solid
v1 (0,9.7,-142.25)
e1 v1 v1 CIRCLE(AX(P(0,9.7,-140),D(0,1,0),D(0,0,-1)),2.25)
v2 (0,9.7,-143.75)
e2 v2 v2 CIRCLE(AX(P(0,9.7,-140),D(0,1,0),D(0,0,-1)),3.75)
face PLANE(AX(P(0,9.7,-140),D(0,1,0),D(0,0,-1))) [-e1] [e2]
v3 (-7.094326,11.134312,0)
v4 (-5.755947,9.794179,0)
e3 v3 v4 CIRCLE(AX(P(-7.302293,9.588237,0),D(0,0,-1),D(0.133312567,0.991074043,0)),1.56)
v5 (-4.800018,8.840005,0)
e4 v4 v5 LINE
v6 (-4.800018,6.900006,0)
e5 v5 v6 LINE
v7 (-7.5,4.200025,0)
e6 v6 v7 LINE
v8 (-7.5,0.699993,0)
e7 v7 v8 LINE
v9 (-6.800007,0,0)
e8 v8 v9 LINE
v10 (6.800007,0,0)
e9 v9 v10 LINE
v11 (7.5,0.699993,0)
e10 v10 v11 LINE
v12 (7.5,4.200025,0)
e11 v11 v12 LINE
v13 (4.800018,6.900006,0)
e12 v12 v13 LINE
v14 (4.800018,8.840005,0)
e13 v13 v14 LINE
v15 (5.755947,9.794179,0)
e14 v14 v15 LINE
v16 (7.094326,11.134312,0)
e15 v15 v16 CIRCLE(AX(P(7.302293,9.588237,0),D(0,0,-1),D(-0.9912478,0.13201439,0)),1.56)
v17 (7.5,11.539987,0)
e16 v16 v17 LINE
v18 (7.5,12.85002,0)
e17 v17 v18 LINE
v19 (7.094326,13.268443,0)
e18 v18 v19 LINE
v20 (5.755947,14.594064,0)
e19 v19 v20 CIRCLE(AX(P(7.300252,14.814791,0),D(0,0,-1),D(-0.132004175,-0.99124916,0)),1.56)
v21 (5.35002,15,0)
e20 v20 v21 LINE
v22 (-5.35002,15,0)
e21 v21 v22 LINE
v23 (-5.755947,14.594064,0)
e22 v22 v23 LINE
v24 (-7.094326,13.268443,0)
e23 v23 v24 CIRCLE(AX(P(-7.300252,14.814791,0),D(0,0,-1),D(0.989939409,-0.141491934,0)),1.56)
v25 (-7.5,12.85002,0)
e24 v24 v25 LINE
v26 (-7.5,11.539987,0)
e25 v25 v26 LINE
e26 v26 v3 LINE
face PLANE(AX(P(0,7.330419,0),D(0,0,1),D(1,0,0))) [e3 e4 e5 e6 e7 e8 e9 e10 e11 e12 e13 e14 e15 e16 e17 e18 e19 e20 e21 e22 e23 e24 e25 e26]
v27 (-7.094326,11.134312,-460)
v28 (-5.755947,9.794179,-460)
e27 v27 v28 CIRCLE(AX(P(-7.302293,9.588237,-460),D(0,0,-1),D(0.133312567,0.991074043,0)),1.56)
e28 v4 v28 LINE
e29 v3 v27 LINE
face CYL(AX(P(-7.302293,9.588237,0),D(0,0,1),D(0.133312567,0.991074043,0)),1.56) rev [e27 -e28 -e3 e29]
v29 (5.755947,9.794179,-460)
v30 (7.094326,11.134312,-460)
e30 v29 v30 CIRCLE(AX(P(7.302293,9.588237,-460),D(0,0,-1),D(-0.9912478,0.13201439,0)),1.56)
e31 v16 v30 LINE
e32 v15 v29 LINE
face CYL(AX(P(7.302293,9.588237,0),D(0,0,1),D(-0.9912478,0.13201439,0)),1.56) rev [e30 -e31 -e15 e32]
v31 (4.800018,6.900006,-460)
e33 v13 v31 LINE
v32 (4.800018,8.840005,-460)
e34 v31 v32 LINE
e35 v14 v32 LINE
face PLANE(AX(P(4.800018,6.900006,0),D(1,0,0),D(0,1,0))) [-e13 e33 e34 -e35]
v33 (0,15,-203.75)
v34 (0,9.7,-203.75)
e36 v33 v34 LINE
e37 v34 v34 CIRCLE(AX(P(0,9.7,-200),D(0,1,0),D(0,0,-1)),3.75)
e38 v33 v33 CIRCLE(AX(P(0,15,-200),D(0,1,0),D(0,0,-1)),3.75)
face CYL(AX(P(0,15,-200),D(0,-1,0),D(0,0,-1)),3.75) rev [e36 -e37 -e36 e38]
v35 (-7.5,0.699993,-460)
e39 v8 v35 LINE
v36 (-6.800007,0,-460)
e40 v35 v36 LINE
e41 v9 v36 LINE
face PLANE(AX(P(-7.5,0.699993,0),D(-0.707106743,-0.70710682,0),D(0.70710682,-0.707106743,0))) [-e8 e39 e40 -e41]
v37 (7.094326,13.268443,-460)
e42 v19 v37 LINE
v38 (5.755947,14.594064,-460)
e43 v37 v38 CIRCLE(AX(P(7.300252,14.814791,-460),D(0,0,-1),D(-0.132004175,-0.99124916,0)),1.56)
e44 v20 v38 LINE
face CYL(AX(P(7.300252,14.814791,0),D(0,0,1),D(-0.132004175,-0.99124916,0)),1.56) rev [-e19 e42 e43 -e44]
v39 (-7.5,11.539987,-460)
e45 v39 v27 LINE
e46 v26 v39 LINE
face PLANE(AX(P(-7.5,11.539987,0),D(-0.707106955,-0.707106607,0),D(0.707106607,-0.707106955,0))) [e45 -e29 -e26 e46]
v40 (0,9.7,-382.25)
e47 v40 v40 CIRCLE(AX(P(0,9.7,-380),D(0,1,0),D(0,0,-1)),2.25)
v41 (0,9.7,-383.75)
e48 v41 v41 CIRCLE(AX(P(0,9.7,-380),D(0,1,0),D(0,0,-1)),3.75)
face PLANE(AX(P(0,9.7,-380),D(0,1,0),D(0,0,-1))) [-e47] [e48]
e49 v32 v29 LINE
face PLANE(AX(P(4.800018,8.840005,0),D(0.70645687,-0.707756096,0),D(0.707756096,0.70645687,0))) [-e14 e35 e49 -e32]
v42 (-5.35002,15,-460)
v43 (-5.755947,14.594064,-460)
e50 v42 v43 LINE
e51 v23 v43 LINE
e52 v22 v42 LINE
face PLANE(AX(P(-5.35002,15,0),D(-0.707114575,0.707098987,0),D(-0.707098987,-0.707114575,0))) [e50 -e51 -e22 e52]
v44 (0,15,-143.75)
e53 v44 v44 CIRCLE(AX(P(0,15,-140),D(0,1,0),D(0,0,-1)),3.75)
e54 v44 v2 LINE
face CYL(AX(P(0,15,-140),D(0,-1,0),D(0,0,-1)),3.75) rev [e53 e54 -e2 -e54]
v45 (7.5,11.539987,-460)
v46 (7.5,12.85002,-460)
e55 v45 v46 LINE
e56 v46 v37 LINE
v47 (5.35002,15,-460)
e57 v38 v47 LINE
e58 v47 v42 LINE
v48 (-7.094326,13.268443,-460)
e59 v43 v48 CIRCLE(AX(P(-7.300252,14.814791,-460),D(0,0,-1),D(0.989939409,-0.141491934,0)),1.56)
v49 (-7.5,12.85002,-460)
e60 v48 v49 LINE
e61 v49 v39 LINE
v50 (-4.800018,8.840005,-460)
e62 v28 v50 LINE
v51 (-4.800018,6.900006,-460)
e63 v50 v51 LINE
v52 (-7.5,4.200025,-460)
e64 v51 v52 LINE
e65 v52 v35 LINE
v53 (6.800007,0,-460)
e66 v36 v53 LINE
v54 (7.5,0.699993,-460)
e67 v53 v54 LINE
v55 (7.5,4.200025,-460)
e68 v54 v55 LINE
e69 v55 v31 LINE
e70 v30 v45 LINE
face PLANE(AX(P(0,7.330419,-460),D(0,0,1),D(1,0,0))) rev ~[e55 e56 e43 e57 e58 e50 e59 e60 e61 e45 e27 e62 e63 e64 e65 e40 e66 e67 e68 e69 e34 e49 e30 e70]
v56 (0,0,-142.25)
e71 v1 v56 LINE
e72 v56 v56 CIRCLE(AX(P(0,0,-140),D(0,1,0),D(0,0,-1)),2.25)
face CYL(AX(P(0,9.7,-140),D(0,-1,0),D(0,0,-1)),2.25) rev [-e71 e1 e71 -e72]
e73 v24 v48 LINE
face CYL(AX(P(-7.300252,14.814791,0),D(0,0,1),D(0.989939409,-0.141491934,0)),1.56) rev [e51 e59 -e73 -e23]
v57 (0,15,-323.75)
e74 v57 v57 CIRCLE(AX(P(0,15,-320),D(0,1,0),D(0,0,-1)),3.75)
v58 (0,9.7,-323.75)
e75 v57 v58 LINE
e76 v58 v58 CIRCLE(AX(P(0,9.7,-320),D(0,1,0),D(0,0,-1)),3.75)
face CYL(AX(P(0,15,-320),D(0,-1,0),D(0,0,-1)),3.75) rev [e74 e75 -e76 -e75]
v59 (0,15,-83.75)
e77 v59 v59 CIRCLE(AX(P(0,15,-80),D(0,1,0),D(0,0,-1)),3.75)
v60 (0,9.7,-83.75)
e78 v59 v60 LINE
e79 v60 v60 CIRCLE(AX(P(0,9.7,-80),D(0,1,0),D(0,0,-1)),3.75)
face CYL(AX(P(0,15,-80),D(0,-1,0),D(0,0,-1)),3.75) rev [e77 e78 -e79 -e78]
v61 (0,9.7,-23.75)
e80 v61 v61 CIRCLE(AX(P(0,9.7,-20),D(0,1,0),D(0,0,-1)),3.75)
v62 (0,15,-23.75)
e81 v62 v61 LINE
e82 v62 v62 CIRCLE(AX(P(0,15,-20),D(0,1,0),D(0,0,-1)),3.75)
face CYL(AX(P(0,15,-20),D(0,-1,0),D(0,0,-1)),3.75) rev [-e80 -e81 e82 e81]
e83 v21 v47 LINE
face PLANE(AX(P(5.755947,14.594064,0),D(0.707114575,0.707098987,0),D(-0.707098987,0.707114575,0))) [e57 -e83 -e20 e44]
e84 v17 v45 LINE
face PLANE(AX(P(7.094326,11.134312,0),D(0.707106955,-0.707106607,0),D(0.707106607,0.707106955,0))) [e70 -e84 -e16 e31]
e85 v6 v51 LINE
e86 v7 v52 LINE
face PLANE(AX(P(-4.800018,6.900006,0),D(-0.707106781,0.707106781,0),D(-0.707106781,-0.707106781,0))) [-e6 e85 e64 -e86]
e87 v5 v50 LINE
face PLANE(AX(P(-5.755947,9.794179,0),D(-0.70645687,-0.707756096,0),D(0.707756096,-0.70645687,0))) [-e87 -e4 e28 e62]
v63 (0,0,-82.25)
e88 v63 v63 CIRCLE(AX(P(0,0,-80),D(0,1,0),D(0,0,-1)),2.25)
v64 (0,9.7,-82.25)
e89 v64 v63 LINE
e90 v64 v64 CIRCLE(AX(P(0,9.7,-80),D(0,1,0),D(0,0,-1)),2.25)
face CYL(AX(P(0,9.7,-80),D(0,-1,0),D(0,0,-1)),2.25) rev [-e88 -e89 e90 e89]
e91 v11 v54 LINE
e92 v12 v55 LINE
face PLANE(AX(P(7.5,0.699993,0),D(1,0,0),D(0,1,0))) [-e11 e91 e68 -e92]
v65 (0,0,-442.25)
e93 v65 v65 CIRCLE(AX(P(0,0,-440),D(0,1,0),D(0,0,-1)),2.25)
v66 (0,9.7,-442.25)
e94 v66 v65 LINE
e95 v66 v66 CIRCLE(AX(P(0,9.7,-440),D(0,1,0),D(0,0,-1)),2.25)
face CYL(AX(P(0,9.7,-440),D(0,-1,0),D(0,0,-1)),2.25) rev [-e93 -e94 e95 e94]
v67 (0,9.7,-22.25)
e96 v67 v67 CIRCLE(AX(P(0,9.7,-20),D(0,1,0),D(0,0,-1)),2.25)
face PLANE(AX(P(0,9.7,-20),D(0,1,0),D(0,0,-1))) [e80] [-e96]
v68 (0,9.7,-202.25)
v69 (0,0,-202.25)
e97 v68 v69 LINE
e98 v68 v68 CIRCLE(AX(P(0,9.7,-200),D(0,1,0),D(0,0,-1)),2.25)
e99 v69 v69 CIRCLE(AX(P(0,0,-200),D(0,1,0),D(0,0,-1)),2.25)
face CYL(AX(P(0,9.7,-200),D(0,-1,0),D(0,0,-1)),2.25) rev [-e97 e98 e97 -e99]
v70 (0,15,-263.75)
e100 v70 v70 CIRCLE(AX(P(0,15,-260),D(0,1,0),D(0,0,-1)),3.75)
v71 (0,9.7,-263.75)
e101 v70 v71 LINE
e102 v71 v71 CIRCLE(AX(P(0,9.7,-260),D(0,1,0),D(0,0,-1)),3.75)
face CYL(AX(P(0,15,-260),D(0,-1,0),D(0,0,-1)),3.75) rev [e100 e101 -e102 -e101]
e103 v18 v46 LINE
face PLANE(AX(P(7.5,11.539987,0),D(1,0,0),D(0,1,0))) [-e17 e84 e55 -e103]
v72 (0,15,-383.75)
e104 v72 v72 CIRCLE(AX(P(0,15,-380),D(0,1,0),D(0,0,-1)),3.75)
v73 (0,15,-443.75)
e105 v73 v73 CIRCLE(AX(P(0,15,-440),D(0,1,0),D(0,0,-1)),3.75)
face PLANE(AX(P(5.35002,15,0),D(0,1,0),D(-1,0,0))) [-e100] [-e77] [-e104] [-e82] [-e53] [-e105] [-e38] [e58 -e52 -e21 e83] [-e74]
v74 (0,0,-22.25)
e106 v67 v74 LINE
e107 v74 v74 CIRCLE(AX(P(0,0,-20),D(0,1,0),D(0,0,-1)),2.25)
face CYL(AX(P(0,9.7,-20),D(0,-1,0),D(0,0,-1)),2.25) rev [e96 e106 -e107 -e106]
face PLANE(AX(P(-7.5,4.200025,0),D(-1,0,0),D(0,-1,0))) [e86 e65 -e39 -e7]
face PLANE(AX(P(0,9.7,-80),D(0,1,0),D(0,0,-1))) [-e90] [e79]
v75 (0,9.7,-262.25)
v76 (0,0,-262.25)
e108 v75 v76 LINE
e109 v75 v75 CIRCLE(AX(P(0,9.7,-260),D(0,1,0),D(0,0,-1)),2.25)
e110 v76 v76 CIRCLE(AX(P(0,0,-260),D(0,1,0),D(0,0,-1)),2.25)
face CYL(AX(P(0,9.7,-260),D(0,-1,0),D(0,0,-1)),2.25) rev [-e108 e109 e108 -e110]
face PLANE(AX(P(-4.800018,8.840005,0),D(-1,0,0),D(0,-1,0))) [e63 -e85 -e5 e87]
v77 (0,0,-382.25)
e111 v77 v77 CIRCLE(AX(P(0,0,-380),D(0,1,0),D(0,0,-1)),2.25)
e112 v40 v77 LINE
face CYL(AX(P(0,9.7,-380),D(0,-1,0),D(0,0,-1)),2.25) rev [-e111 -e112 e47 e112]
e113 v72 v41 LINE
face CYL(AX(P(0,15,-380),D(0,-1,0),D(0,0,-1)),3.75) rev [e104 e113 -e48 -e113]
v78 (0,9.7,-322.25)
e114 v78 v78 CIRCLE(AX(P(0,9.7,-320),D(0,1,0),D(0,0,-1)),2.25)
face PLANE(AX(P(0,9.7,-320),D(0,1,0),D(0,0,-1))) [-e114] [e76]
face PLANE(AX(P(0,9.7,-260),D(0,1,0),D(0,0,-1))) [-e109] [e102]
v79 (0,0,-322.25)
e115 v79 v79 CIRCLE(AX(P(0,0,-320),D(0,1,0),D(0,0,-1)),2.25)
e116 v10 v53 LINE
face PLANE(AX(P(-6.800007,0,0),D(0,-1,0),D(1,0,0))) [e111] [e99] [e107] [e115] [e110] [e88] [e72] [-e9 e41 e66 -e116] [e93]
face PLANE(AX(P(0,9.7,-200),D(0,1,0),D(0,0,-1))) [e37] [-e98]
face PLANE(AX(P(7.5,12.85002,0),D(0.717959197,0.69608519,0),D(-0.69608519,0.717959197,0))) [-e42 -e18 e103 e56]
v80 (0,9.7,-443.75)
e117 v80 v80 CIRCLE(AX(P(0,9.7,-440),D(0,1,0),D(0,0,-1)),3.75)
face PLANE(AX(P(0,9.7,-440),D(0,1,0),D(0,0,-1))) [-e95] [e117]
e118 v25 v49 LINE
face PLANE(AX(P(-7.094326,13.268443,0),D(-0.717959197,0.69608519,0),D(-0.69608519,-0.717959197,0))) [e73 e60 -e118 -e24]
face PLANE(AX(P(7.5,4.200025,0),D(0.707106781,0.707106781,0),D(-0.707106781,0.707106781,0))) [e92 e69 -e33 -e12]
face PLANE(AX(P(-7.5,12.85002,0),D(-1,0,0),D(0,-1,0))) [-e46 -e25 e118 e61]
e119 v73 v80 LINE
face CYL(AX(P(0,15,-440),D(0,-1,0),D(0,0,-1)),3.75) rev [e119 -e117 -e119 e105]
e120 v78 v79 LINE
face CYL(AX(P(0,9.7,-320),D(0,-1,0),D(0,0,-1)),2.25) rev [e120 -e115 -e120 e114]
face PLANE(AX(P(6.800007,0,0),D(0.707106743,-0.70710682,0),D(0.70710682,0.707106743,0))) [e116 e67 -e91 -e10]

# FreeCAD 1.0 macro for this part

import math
import FreeCAD as App
import Part
import Sketcher

V = App.Vector

doc = App.newDocument("Part")
params = doc.addObject("Spreadsheet::Sheet", "Params")
for row, (alias, value) in enumerate([
    ("sketch1_radius", "1.56 mm"),
    ("sketch1_height", "1.939999 mm"),
    ("pad1_length", "460 mm"),
    ("sketch2_width", "15 mm"),
    ("sketch2_width2", "9.7 mm"),
    ("sketch2_height", "1.5 mm"),
    ("sketch2_height2", "3.75 mm"),
    ("groove_angle", "360 deg"),
    ("linearpattern_pitch", "60 mm"),
], start=1):
    params.set(f"A{row}", alias)
    params.set(f"B{row}", "=" + value)
    params.setAlias(f"B{row}", alias)

body = doc.addObject("PartDesign::Body", "Body")

# Sketch on XY plane
sketch1 = doc.addObject("Sketcher::SketchObject", "Sketch")
body.addObject(sketch1)
sketch1.AttachmentSupport = (doc.XY_Plane, [""])
sketch1.MapMode = "FlatFace"
sketch1.addGeometry(Part.LineSegment(V(-7.5, 0.7, 0), V(-6.8, 0, 0)), False)
sketch1.addGeometry(Part.LineSegment(V(-6.8, 0, 0), V(6.8, 0, 0)), False)
sketch1.addGeometry(Part.LineSegment(V(6.8, 0, 0), V(7.5, 0.7, 0)), False)
sketch1.addGeometry(Part.LineSegment(V(7.5, 0.7, 0), V(7.5, 4.2, 0)), False)
sketch1.addGeometry(Part.LineSegment(V(7.5, 4.2, 0), V(4.8, 6.9, 0)), False)
sketch1.addGeometry(Part.LineSegment(V(4.8, 6.9, 0), V(4.8, 8.8, 0)), False)
sketch1.addGeometry(Part.LineSegment(V(4.8, 8.8, 0), V(5.8, 9.8, 0)), False)
sketch1.addGeometry(Part.ArcOfCircle(Part.Circle(V(7.3, 9.6, 0), V(0, 0, 1), 1.6), math.radians(98), math.radians(172)), False)
sketch1.addGeometry(Part.LineSegment(V(7.1, 11.1, 0), V(7.5, 11.5, 0)), False)
sketch1.addGeometry(Part.LineSegment(V(7.5, 11.5, 0), V(7.5, 12.9, 0)), False)
sketch1.addGeometry(Part.LineSegment(V(7.5, 12.9, 0), V(7.1, 13.3, 0)), False)
sketch1.addGeometry(Part.ArcOfCircle(Part.Circle(V(7.3, 14.8, 0), V(0, 0, 1), 1.6), math.radians(-172), math.radians(-98)), False)
sketch1.addGeometry(Part.LineSegment(V(5.8, 14.6, 0), V(5.4, 15, 0)), False)
sketch1.addGeometry(Part.LineSegment(V(5.4, 15, 0), V(-5.4, 15, 0)), False)
sketch1.addGeometry(Part.LineSegment(V(-5.4, 15, 0), V(-5.8, 14.6, 0)), False)
sketch1.addGeometry(Part.ArcOfCircle(Part.Circle(V(-7.3, 14.8, 0), V(0, 0, 1), 1.6), math.radians(-82), math.radians(-8)), False)
sketch1.addGeometry(Part.LineSegment(V(-7.1, 13.3, 0), V(-7.5, 12.9, 0)), False)
sketch1.addGeometry(Part.LineSegment(V(-7.5, 12.9, 0), V(-7.5, 11.5, 0)), False)
sketch1.addGeometry(Part.LineSegment(V(-7.5, 11.5, 0), V(-7.1, 11.1, 0)), False)
sketch1.addGeometry(Part.ArcOfCircle(Part.Circle(V(-7.3, 9.6, 0), V(0, 0, 1), 1.6), math.radians(8), math.radians(82)), False)
sketch1.addGeometry(Part.LineSegment(V(-5.8, 9.8, 0), V(-4.8, 8.8, 0)), False)
sketch1.addGeometry(Part.LineSegment(V(-4.8, 8.8, 0), V(-4.8, 6.9, 0)), False)
sketch1.addGeometry(Part.LineSegment(V(-4.8, 6.9, 0), V(-7.5, 4.2, 0)), False)
sketch1.addGeometry(Part.LineSegment(V(-7.5, 4.2, 0), V(-7.5, 0.7, 0)), False)
sketch1.addConstraint(Sketcher.Constraint("Coincident", 0, 2, 1, 1))
sketch1.addConstraint(Sketcher.Constraint("Coincident", 1, 2, 2, 1))
sketch1.addConstraint(Sketcher.Constraint("Coincident", 2, 2, 3, 1))
sketch1.addConstraint(Sketcher.Constraint("Coincident", 3, 2, 4, 1))
sketch1.addConstraint(Sketcher.Constraint("Coincident", 4, 2, 5, 1))
sketch1.addConstraint(Sketcher.Constraint("Coincident", 5, 2, 6, 1))
sketch1.addConstraint(Sketcher.Constraint("Coincident", 6, 2, 7, 2))
sketch1.addConstraint(Sketcher.Constraint("Coincident", 7, 1, 8, 1))
sketch1.addConstraint(Sketcher.Constraint("Coincident", 8, 2, 9, 1))
sketch1.addConstraint(Sketcher.Constraint("Coincident", 9, 2, 10, 1))
sketch1.addConstraint(Sketcher.Constraint("Coincident", 10, 2, 11, 2))
sketch1.addConstraint(Sketcher.Constraint("Coincident", 11, 1, 12, 1))
sketch1.addConstraint(Sketcher.Constraint("Coincident", 12, 2, 13, 1))
sketch1.addConstraint(Sketcher.Constraint("Coincident", 13, 2, 14, 1))
sketch1.addConstraint(Sketcher.Constraint("Coincident", 14, 2, 15, 2))
sketch1.addConstraint(Sketcher.Constraint("Coincident", 15, 1, 16, 1))
sketch1.addConstraint(Sketcher.Constraint("Coincident", 16, 2, 17, 1))
sketch1.addConstraint(Sketcher.Constraint("Coincident", 17, 2, 18, 1))
sketch1.addConstraint(Sketcher.Constraint("Coincident", 18, 2, 19, 2))
sketch1.addConstraint(Sketcher.Constraint("Coincident", 19, 1, 20, 1))
sketch1.addConstraint(Sketcher.Constraint("Coincident", 20, 2, 21, 1))
sketch1.addConstraint(Sketcher.Constraint("Coincident", 21, 2, 22, 1))
sketch1.addConstraint(Sketcher.Constraint("Coincident", 22, 2, 23, 1))
sketch1.addConstraint(Sketcher.Constraint("Coincident", 23, 2, 0, 1))
sketch1.addConstraint(Sketcher.Constraint("Horizontal", 1))
sketch1.addConstraint(Sketcher.Constraint("Vertical", 3))
sketch1.addConstraint(Sketcher.Constraint("Vertical", 5))
sketch1.addConstraint(Sketcher.Constraint("Vertical", 9))
sketch1.addConstraint(Sketcher.Constraint("Horizontal", 13))
sketch1.addConstraint(Sketcher.Constraint("Vertical", 17))
sketch1.addConstraint(Sketcher.Constraint("Vertical", 21))
sketch1.addConstraint(Sketcher.Constraint("Vertical", 23))
sketch1.addConstraint(Sketcher.Constraint("Equal", 7, 11))
sketch1.addConstraint(Sketcher.Constraint("Equal", 11, 15))
sketch1.addConstraint(Sketcher.Constraint("Equal", 15, 19))
sketch1.addConstraint(Sketcher.Constraint("Symmetric", 0, 2, 1, 2, -1, 1))
sketch1.addConstraint(Sketcher.Constraint("Symmetric", 11, 3, 15, 3, -2))
sketch1.addConstraint(Sketcher.Constraint("Symmetric", 7, 3, 19, 3, -2))
sketch1.addConstraint(Sketcher.Constraint("Symmetric", 9, 2, 16, 2, -2))
sketch1.addConstraint(Sketcher.Constraint("Symmetric", 5, 2, 20, 2, -2))
sketch1.addConstraint(Sketcher.Constraint("Symmetric", 3, 2, 22, 2, -2))
sketch1.addConstraint(Sketcher.Constraint("Perpendicular", 0, 2))
sketch1.addConstraint(Sketcher.Constraint("Perpendicular", 2, 4))
sketch1.addConstraint(Sketcher.Constraint("Perpendicular", 4, 8))
sketch1.addConstraint(Sketcher.Constraint("Perpendicular", 8, 18))
sketch1.addConstraint(Sketcher.Constraint("Perpendicular", 18, 22))
sketch1.addConstraint(Sketcher.Constraint("Horizontal", 11, 1, 14, 2))
sketch1.addConstraint(Sketcher.Constraint("Horizontal", 10, 2, 15, 1))
sketch1.addConstraint(Sketcher.Constraint("Horizontal", 8, 2, 17, 2))
sketch1.addConstraint(Sketcher.Constraint("Horizontal", 7, 1, 18, 2))
sketch1.addConstraint(Sketcher.Constraint("Horizontal", 6, 2, 19, 1))
sketch1.addConstraint(Sketcher.Constraint("Vertical", 3, 2, 8, 2))
sketch1.addConstraint(Sketcher.Constraint("Vertical", 7, 1, 10, 2))
sketch1.addConstraint(Sketcher.Constraint("Vertical", 6, 2, 11, 1))
sketch1.addConstraint(Sketcher.Constraint("Equal", 12, 14))
sketch1.addConstraint(Sketcher.Constraint("Radius", 7, 1.56))
sketch1.addConstraint(Sketcher.Constraint("DistanceY", -1, 1, 12, 2, 15.0))
sketch1.addConstraint(Sketcher.Constraint("DistanceY", 5, 1, 5, 2, 1.939999))
sketch1.addConstraint(Sketcher.Constraint("DistanceX", -1, 1, 2, 2, 7.5))
sketch1.addConstraint(Sketcher.Constraint("DistanceX", 13, 2, 13, 1, 10.700039))
sketch1.addConstraint(Sketcher.Constraint("DistanceY", 3, 1, 3, 2, 3.500032))
sketch1.addConstraint(Sketcher.Constraint("DistanceX", 0, 2, 7, 3, 14.1023))
sketch1.addConstraint(Sketcher.Constraint("DistanceY", 2, 2, 11, 3, 14.114799))
sketch1.addConstraint(Sketcher.Constraint("Distance", 0, 0.989939))
sketch1.addConstraint(Sketcher.Constraint("Distance", 4, 3.818351))
sketch1.addConstraint(Sketcher.Constraint("Distance", 8, 0.57371))
sketch1.addConstraint(Sketcher.Constraint("DistanceY", 9, 1, 9, 2, 1.310034))
sketch1.addConstraint(Sketcher.Constraint("DistanceY", -1, 1, 6, 2, 9.794179))
sketch1.addConstraint(Sketcher.Constraint("DistanceY", -1, 1, 9, 2, 12.85002))
sketch1.addConstraint(Sketcher.Constraint("DistanceX", 11, 3, 7, 3, 0.002041))
sketch1.setExpression("Constraints[55]", "Params.sketch1_radius")
sketch1.setExpression("Constraints[57]", "Params.sketch1_height")
pad1 = doc.addObject("PartDesign::Pad", "Pad")
body.addObject(pad1)
pad1.Profile = sketch1
pad1.setExpression("Length", "Params.pad1_length")
pad1.Reversed = True

# Sketch on YZ plane
sketch2 = doc.addObject("Sketcher::SketchObject", "Sketch001")
body.addObject(sketch2)
sketch2.AttachmentSupport = (doc.YZ_Plane, [""])
sketch2.MapMode = "FlatFace"
sketch2.addGeometry(Part.LineSegment(V(15, -23.8, 0), V(15, -20, 0)), False)
sketch2.addGeometry(Part.LineSegment(V(15, -20, 0), V(0, -20, 0)), False)
sketch2.addGeometry(Part.LineSegment(V(0, -20, 0), V(0, -22.2, 0)), False)
sketch2.addGeometry(Part.LineSegment(V(0, -22.2, 0), V(9.7, -22.2, 0)), False)
sketch2.addGeometry(Part.LineSegment(V(9.7, -22.2, 0), V(9.7, -23.8, 0)), False)
sketch2.addGeometry(Part.LineSegment(V(9.7, -23.8, 0), V(15, -23.8, 0)), False)
sketch2.addGeometry(Part.LineSegment(V(0, -20, 0), V(15, -20, 0)), True)  # axis
sketch2.addConstraint(Sketcher.Constraint("Coincident", 0, 2, 1, 1))
sketch2.addConstraint(Sketcher.Constraint("Coincident", 1, 2, 2, 1))
sketch2.addConstraint(Sketcher.Constraint("Coincident", 2, 2, 3, 1))
sketch2.addConstraint(Sketcher.Constraint("Coincident", 3, 2, 4, 1))
sketch2.addConstraint(Sketcher.Constraint("Coincident", 4, 2, 5, 1))
sketch2.addConstraint(Sketcher.Constraint("Coincident", 5, 2, 0, 1))
sketch2.addConstraint(Sketcher.Constraint("Vertical", 0))
sketch2.addConstraint(Sketcher.Constraint("Horizontal", 1))
sketch2.addConstraint(Sketcher.Constraint("Vertical", 2))
sketch2.addConstraint(Sketcher.Constraint("Horizontal", 3))
sketch2.addConstraint(Sketcher.Constraint("Vertical", 4))
sketch2.addConstraint(Sketcher.Constraint("Horizontal", 5))
sketch2.addConstraint(Sketcher.Constraint("Horizontal", 6))
sketch2.addConstraint(Sketcher.Constraint("Coincident", 6, 1, 1, 2))
sketch2.addConstraint(Sketcher.Constraint("PointOnObject", 1, 2, -2))
sketch2.addConstraint(Sketcher.Constraint("Vertical", 5, 2, 6, 2))
sketch2.addConstraint(Sketcher.Constraint("DistanceX", 1, 2, 1, 1, 15.0))
sketch2.addConstraint(Sketcher.Constraint("DistanceX", 3, 1, 3, 2, 9.7))
sketch2.addConstraint(Sketcher.Constraint("DistanceY", 4, 2, 4, 1, 1.5))
sketch2.addConstraint(Sketcher.Constraint("DistanceY", 0, 2, -1, 1, 20.0))
sketch2.addConstraint(Sketcher.Constraint("DistanceY", 0, 1, 0, 2, 3.75))
sketch2.setExpression("Constraints[16]", "Params.sketch2_width")
sketch2.setExpression("Constraints[17]", "Params.sketch2_width2")
sketch2.setExpression("Constraints[18]", "Params.sketch2_height")
sketch2.setExpression("Constraints[20]", "Params.sketch2_height2")
groove = doc.addObject("PartDesign::Groove", "Groove")
body.addObject(groove)
groove.Profile = sketch2
groove.ReferenceAxis = (sketch2, ["Axis0"])
groove.setExpression("Angle", "Params.groove_angle")
doc.recompute()

linearpattern = doc.addObject("PartDesign::LinearPattern", "LinearPattern")
body.addObject(linearpattern)
linearpattern.Originals = [groove]
linearpattern.Direction = (doc.Z_Axis, [""])
linearpattern.Mode = "offset"
linearpattern.setExpression("Offset", "Params.linearpattern_pitch")
linearpattern.Occurrences = 8
linearpattern.Reversed = True
body.Tip = linearpattern

doc.recompute()
